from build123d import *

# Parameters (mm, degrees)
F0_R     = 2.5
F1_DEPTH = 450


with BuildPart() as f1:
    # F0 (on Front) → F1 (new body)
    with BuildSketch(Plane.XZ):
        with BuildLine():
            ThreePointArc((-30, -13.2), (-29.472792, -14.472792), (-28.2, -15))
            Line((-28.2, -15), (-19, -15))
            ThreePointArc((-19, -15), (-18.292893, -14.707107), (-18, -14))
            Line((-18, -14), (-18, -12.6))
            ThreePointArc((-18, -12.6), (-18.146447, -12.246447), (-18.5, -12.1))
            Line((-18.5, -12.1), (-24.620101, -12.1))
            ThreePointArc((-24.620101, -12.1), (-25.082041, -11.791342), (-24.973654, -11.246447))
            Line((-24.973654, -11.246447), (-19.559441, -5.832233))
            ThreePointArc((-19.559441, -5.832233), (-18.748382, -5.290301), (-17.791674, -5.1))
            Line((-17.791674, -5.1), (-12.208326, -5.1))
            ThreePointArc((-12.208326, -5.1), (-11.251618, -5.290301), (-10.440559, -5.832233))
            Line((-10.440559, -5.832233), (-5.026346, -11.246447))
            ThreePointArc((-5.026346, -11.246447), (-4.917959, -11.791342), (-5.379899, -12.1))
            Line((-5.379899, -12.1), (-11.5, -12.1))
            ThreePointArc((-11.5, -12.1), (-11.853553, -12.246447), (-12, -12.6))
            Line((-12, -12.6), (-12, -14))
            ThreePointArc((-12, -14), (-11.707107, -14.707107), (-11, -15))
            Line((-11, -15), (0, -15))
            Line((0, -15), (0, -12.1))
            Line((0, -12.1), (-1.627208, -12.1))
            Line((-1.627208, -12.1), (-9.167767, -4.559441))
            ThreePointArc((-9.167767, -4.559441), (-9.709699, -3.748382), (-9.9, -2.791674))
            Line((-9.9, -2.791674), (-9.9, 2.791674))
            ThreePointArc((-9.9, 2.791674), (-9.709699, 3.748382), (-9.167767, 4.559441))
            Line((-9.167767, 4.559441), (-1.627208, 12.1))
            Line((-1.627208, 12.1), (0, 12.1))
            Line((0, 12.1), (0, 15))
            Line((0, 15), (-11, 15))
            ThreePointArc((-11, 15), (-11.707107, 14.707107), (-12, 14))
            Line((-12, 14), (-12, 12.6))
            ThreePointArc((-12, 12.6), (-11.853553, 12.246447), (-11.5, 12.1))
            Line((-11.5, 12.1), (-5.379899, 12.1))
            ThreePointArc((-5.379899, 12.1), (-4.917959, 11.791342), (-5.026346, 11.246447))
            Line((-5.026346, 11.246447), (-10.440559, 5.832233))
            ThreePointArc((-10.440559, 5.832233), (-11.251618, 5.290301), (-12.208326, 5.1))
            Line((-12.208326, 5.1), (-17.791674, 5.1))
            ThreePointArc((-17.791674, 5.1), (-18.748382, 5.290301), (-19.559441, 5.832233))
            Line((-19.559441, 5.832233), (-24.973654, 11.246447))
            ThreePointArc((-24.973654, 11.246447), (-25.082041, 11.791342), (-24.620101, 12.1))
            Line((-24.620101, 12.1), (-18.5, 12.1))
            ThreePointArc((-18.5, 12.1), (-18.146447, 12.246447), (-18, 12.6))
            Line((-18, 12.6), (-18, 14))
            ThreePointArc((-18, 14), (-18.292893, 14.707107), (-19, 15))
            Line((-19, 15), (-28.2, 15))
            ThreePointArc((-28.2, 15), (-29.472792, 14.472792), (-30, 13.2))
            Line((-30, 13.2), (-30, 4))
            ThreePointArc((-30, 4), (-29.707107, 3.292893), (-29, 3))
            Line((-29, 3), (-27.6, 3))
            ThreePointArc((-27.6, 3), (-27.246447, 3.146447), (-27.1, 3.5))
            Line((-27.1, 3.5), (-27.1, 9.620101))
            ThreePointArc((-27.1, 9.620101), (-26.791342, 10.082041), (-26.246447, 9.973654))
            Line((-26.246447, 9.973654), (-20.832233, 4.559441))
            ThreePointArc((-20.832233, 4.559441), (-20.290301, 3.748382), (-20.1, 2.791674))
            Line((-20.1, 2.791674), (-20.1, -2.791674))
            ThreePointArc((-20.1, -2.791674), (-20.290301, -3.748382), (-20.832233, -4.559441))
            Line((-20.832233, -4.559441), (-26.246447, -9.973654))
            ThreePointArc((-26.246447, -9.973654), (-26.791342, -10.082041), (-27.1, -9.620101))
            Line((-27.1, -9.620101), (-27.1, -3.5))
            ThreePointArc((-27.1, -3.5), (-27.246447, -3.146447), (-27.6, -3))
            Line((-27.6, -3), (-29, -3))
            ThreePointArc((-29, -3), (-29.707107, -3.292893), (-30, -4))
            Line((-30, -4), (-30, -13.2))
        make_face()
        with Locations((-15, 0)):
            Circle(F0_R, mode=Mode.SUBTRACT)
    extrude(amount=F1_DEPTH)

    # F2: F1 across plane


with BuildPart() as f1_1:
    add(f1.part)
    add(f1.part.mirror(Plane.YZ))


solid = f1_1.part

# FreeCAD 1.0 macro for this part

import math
import FreeCAD as App
import Part
import Sketcher

V = App.Vector
Q = App.Units.Quantity

doc = App.newDocument("Part")
body = doc.addObject("PartDesign::Body", "Body")

# Sketch on XZ plane
sketch1 = doc.addObject("Sketcher::SketchObject", "Sketch")
body.addObject(sketch1)
sketch1.AttachmentSupport = (doc.XZ_Plane, [""])
sketch1.MapMode = "FlatFace"
sketch1.addGeometry([
    Part.ArcOfCircle(Part.Circle(V(-28.2, -13.2, 0), V(0, 0, 1), 1.8), math.radians(-180), math.radians(-90)),  # 0
    Part.LineSegment(V(-28.2, -15, 0), V(-19, -15, 0)),  # 1
    Part.ArcOfCircle(Part.Circle(V(-19, -14, 0), V(0, 0, 1), 1), math.radians(-90), math.radians(0)),  # 2
    Part.LineSegment(V(-18, -14, 0), V(-18, -12.6, 0)),  # 3
    Part.ArcOfCircle(Part.Circle(V(-18.5, -12.6, 0), V(0, 0, 1), 0.5), math.radians(0), math.radians(90)),  # 4
    Part.LineSegment(V(-18.5, -12.1, 0), V(-24.62, -12.1, 0)),  # 5
    Part.ArcOfCircle(Part.Circle(V(-24.62, -11.6, 0), V(0, 0, 1), 0.5), math.radians(135), math.radians(270)),  # 6
    Part.LineSegment(V(-24.97, -11.25, 0), V(-19.56, -5.83, 0)),  # 7
    Part.ArcOfCircle(Part.Circle(V(-17.79, -7.6, 0), V(0, 0, 1), 2.5), math.radians(90), math.radians(135)),  # 8
    Part.LineSegment(V(-17.79, -5.1, 0), V(-12.21, -5.1, 0)),  # 9
    Part.ArcOfCircle(Part.Circle(V(-12.21, -7.6, 0), V(0, 0, 1), 2.5), math.radians(45), math.radians(90)),  # 10
    Part.LineSegment(V(-10.44, -5.83, 0), V(-5.03, -11.25, 0)),  # 11
    Part.ArcOfCircle(Part.Circle(V(-5.38, -11.6, 0), V(0, 0, 1), 0.5), math.radians(-90), math.radians(45)),  # 12
    Part.LineSegment(V(-5.38, -12.1, 0), V(-11.5, -12.1, 0)),  # 13
    Part.ArcOfCircle(Part.Circle(V(-11.5, -12.6, 0), V(0, 0, 1), 0.5), math.radians(90), math.radians(180)),  # 14
    Part.LineSegment(V(-12, -12.6, 0), V(-12, -14, 0)),  # 15
    Part.ArcOfCircle(Part.Circle(V(-11, -14, 0), V(0, 0, 1), 1), math.radians(180), math.radians(270)),  # 16
    Part.LineSegment(V(-11, -15, 0), V(0, -15, 0)),  # 17
    Part.LineSegment(V(0, -15, 0), V(0, -12.1, 0)),  # 18
    Part.LineSegment(V(0, -12.1, 0), V(-1.63, -12.1, 0)),  # 19
    Part.LineSegment(V(-1.63, -12.1, 0), V(-9.17, -4.56, 0)),  # 20
    Part.ArcOfCircle(Part.Circle(V(-7.4, -2.79, 0), V(0, 0, 1), 2.5), math.radians(-180), math.radians(-135)),  # 21
    Part.LineSegment(V(-9.9, -2.79, 0), V(-9.9, 2.79, 0)),  # 22
    Part.ArcOfCircle(Part.Circle(V(-7.4, 2.79, 0), V(0, 0, 1), 2.5), math.radians(135), math.radians(180)),  # 23
    Part.LineSegment(V(-9.17, 4.56, 0), V(-1.63, 12.1, 0)),  # 24
    Part.LineSegment(V(-1.63, 12.1, 0), V(0, 12.1, 0)),  # 25
    Part.LineSegment(V(0, 12.1, 0), V(0, 15, 0)),  # 26
    Part.LineSegment(V(0, 15, 0), V(-11, 15, 0)),  # 27
    Part.ArcOfCircle(Part.Circle(V(-11, 14, 0), V(0, 0, 1), 1), math.radians(90), math.radians(180)),  # 28
    Part.LineSegment(V(-12, 14, 0), V(-12, 12.6, 0)),  # 29
    Part.ArcOfCircle(Part.Circle(V(-11.5, 12.6, 0), V(0, 0, 1), 0.5), math.radians(-180), math.radians(-90)),  # 30
    Part.LineSegment(V(-11.5, 12.1, 0), V(-5.38, 12.1, 0)),  # 31
    Part.ArcOfCircle(Part.Circle(V(-5.38, 11.6, 0), V(0, 0, 1), 0.5), math.radians(-45), math.radians(90)),  # 32
    Part.LineSegment(V(-5.03, 11.25, 0), V(-10.44, 5.83, 0)),  # 33
    Part.ArcOfCircle(Part.Circle(V(-12.21, 7.6, 0), V(0, 0, 1), 2.5), math.radians(-90), math.radians(-45)),  # 34
    Part.LineSegment(V(-12.21, 5.1, 0), V(-17.79, 5.1, 0)),  # 35
    Part.ArcOfCircle(Part.Circle(V(-17.79, 7.6, 0), V(0, 0, 1), 2.5), math.radians(-135), math.radians(-90)),  # 36
    Part.LineSegment(V(-19.56, 5.83, 0), V(-24.97, 11.25, 0)),  # 37
    Part.ArcOfCircle(Part.Circle(V(-24.62, 11.6, 0), V(0, 0, 1), 0.5), math.radians(90), math.radians(225)),  # 38
    Part.LineSegment(V(-24.62, 12.1, 0), V(-18.5, 12.1, 0)),  # 39
    Part.ArcOfCircle(Part.Circle(V(-18.5, 12.6, 0), V(0, 0, 1), 0.5), math.radians(-90), math.radians(0)),  # 40
    Part.LineSegment(V(-18, 12.6, 0), V(-18, 14, 0)),  # 41
    Part.ArcOfCircle(Part.Circle(V(-19, 14, 0), V(0, 0, 1), 1), math.radians(0), math.radians(90)),  # 42
    Part.LineSegment(V(-19, 15, 0), V(-28.2, 15, 0)),  # 43
    Part.ArcOfCircle(Part.Circle(V(-28.2, 13.2, 0), V(0, 0, 1), 1.8), math.radians(90), math.radians(180)),  # 44
    Part.LineSegment(V(-30, 13.2, 0), V(-30, 4, 0)),  # 45
    Part.ArcOfCircle(Part.Circle(V(-29, 4, 0), V(0, 0, 1), 1), math.radians(180), math.radians(270)),  # 46
    Part.LineSegment(V(-29, 3, 0), V(-27.6, 3, 0)),  # 47
    Part.ArcOfCircle(Part.Circle(V(-27.6, 3.5, 0), V(0, 0, 1), 0.5), math.radians(-90), math.radians(0)),  # 48
    Part.LineSegment(V(-27.1, 3.5, 0), V(-27.1, 9.62, 0)),  # 49
    Part.ArcOfCircle(Part.Circle(V(-26.6, 9.62, 0), V(0, 0, 1), 0.5), math.radians(45), math.radians(180)),  # 50
    Part.LineSegment(V(-26.25, 9.97, 0), V(-20.83, 4.56, 0)),  # 51
    Part.ArcOfCircle(Part.Circle(V(-22.6, 2.79, 0), V(0, 0, 1), 2.5), math.radians(0), math.radians(45)),  # 52
    Part.LineSegment(V(-20.1, 2.79, 0), V(-20.1, -2.79, 0)),  # 53
    Part.ArcOfCircle(Part.Circle(V(-22.6, -2.79, 0), V(0, 0, 1), 2.5), math.radians(-45), math.radians(0)),  # 54
    Part.LineSegment(V(-20.83, -4.56, 0), V(-26.25, -9.97, 0)),  # 55
    Part.ArcOfCircle(Part.Circle(V(-26.6, -9.62, 0), V(0, 0, 1), 0.5), math.radians(180), math.radians(315)),  # 56
    Part.LineSegment(V(-27.1, -9.62, 0), V(-27.1, -3.5, 0)),  # 57
    Part.ArcOfCircle(Part.Circle(V(-27.6, -3.5, 0), V(0, 0, 1), 0.5), math.radians(0), math.radians(90)),  # 58
    Part.LineSegment(V(-27.6, -3, 0), V(-29, -3, 0)),  # 59
    Part.ArcOfCircle(Part.Circle(V(-29, -4, 0), V(0, 0, 1), 1), math.radians(90), math.radians(180)),  # 60
    Part.LineSegment(V(-30, -4, 0), V(-30, -13.2, 0)),  # 61
    Part.Circle(V(-15, 0, 0), V(0, 0, 1), 2.5),  # 62
], False)
sketch1.addConstraint([
    Sketcher.Constraint("Tangent", 0, 2, 1, 1),
    Sketcher.Constraint("Tangent", 1, 2, 2, 1),
    Sketcher.Constraint("Tangent", 2, 2, 3, 1),
    Sketcher.Constraint("Coincident", 3, 2, 4, 1),
    Sketcher.Constraint("Coincident", 4, 2, 5, 1),
    Sketcher.Constraint("Tangent", 5, 2, 6, 2),
    Sketcher.Constraint("Coincident", 6, 1, 7, 1),
    Sketcher.Constraint("Tangent", 7, 2, 8, 2),
    Sketcher.Constraint("Tangent", 8, 1, 9, 1),
    Sketcher.Constraint("Tangent", 9, 2, 10, 2),
    Sketcher.Constraint("Tangent", 10, 1, 11, 1),
    Sketcher.Constraint("Coincident", 11, 2, 12, 2),
    Sketcher.Constraint("Tangent", 12, 1, 13, 1),
    Sketcher.Constraint("Coincident", 13, 2, 14, 1),
    Sketcher.Constraint("Coincident", 14, 2, 15, 1),
    Sketcher.Constraint("Tangent", 15, 2, 16, 1),
    Sketcher.Constraint("Tangent", 16, 2, 17, 1),
    Sketcher.Constraint("Coincident", 17, 2, 18, 1),
    Sketcher.Constraint("Coincident", 18, 2, 19, 1),
    Sketcher.Constraint("Coincident", 19, 2, 20, 1),
    Sketcher.Constraint("Tangent", 20, 2, 21, 2),
    Sketcher.Constraint("Tangent", 21, 1, 22, 1),
    Sketcher.Constraint("Tangent", 22, 2, 23, 2),
    Sketcher.Constraint("Tangent", 23, 1, 24, 1),
    Sketcher.Constraint("Coincident", 24, 2, 25, 1),
    Sketcher.Constraint("Coincident", 25, 2, 26, 1),
    Sketcher.Constraint("Coincident", 26, 2, 27, 1),
    Sketcher.Constraint("Tangent", 27, 2, 28, 1),
    Sketcher.Constraint("Tangent", 28, 2, 29, 1),
    Sketcher.Constraint("Coincident", 29, 2, 30, 1),
    Sketcher.Constraint("Coincident", 30, 2, 31, 1),
    Sketcher.Constraint("Tangent", 31, 2, 32, 2),
    Sketcher.Constraint("Coincident", 32, 1, 33, 1),
    Sketcher.Constraint("Tangent", 33, 2, 34, 2),
    Sketcher.Constraint("Tangent", 34, 1, 35, 1),
    Sketcher.Constraint("Tangent", 35, 2, 36, 2),
    Sketcher.Constraint("Tangent", 36, 1, 37, 1),
    Sketcher.Constraint("Coincident", 37, 2, 38, 2),
    Sketcher.Constraint("Tangent", 38, 1, 39, 1),
    Sketcher.Constraint("Coincident", 39, 2, 40, 1),
    Sketcher.Constraint("Coincident", 40, 2, 41, 1),
    Sketcher.Constraint("Tangent", 41, 2, 42, 1),
    Sketcher.Constraint("Tangent", 42, 2, 43, 1),
    Sketcher.Constraint("Tangent", 43, 2, 44, 1),
    Sketcher.Constraint("Tangent", 44, 2, 45, 1),
    Sketcher.Constraint("Tangent", 45, 2, 46, 1),
    Sketcher.Constraint("Tangent", 46, 2, 47, 1),
    Sketcher.Constraint("Coincident", 47, 2, 48, 1),
    Sketcher.Constraint("Coincident", 48, 2, 49, 1),
    Sketcher.Constraint("Tangent", 49, 2, 50, 2),
    Sketcher.Constraint("Coincident", 50, 1, 51, 1),
    Sketcher.Constraint("Tangent", 51, 2, 52, 2),
    Sketcher.Constraint("Tangent", 52, 1, 53, 1),
    Sketcher.Constraint("Tangent", 53, 2, 54, 2),
    Sketcher.Constraint("Tangent", 54, 1, 55, 1),
    Sketcher.Constraint("Coincident", 55, 2, 56, 2),
    Sketcher.Constraint("Tangent", 56, 1, 57, 1),
    Sketcher.Constraint("Coincident", 57, 2, 58, 1),
    Sketcher.Constraint("Coincident", 58, 2, 59, 1),
    Sketcher.Constraint("Tangent", 59, 2, 60, 1),
    Sketcher.Constraint("Tangent", 60, 2, 61, 1),
    Sketcher.Constraint("Tangent", 61, 2, 0, 1),
    Sketcher.Constraint("Horizontal", 1),
    Sketcher.Constraint("Vertical", 3),
    Sketcher.Constraint("Horizontal", 5),
    Sketcher.Constraint("Horizontal", 9),
    Sketcher.Constraint("Horizontal", 13),
    Sketcher.Constraint("Vertical", 15),
    Sketcher.Constraint("Horizontal", 17),
    Sketcher.Constraint("Vertical", 18),
    Sketcher.Constraint("Horizontal", 19),
    Sketcher.Constraint("Vertical", 22),
    Sketcher.Constraint("Horizontal", 25),
    Sketcher.Constraint("Vertical", 26),
    Sketcher.Constraint("Horizontal", 27),
    Sketcher.Constraint("Vertical", 29),
    Sketcher.Constraint("Horizontal", 31),
    Sketcher.Constraint("Horizontal", 35),
    Sketcher.Constraint("Horizontal", 39),
    Sketcher.Constraint("Vertical", 41),
    Sketcher.Constraint("Horizontal", 43),
    Sketcher.Constraint("Vertical", 45),
    Sketcher.Constraint("Horizontal", 47),
    Sketcher.Constraint("Vertical", 49),
    Sketcher.Constraint("Vertical", 53),
    Sketcher.Constraint("Vertical", 57),
    Sketcher.Constraint("Horizontal", 59),
    Sketcher.Constraint("Vertical", 61),
    Sketcher.Constraint("Equal", 4, 6),
    Sketcher.Constraint("Equal", 8, 10),
    Sketcher.Constraint("Equal", 6, 12),
    Sketcher.Constraint("Equal", 12, 14),
    Sketcher.Constraint("Equal", 2, 16),
    Sketcher.Constraint("Equal", 10, 21),
    Sketcher.Constraint("Equal", 21, 23),
    Sketcher.Constraint("Equal", 16, 28),
    Sketcher.Constraint("Equal", 14, 30),
    Sketcher.Constraint("Equal", 30, 32),
    Sketcher.Constraint("Equal", 23, 34),
    Sketcher.Constraint("Equal", 34, 36),
    Sketcher.Constraint("Equal", 32, 38),
    Sketcher.Constraint("Equal", 38, 40),
    Sketcher.Constraint("Equal", 28, 42),
    Sketcher.Constraint("Equal", 0, 44),
    Sketcher.Constraint("Equal", 42, 46),
    Sketcher.Constraint("Equal", 40, 48),
    Sketcher.Constraint("Equal", 48, 50),
    Sketcher.Constraint("Equal", 36, 52),
    Sketcher.Constraint("Equal", 52, 54),
    Sketcher.Constraint("Equal", 50, 56),
    Sketcher.Constraint("Equal", 56, 58),
    Sketcher.Constraint("Equal", 46, 60),
    Sketcher.Constraint("Equal", 54, 62),
    Sketcher.Constraint("Symmetric", 18, 2, 25, 2, -1, 1),
    Sketcher.Constraint("Symmetric", 16, 3, 28, 3, -1),
    Sketcher.Constraint("Symmetric", 12, 3, 32, 3, -1),
    Sketcher.Constraint("Symmetric", 10, 3, 34, 3, -1),
    Sketcher.Constraint("Symmetric", 6, 3, 38, 3, -1),
    Sketcher.Constraint("Symmetric", 2, 3, 42, 3, -1),
    Sketcher.Constraint("Symmetric", 50, 3, 56, 3, -1),
    Sketcher.Constraint("Symmetric", 46, 3, 60, 3, -1),
    Sketcher.Constraint("Symmetric", 20, 2, 23, 1, -1),
    Sketcher.Constraint("PointOnObject", 62, 3, -1),
    Sketcher.Constraint("PointOnObject", 17, 2, -2),
    Sketcher.Constraint("Perpendicular", 7, 11),
    Sketcher.Constraint("Parallel", 11, 20),
    Sketcher.Constraint("Perpendicular", 20, 24),
    Sketcher.Constraint("Perpendicular", 33, 37),
    Sketcher.Constraint("Parallel", 37, 51),
    Sketcher.Constraint("Perpendicular", 51, 55),
    Sketcher.Constraint("Horizontal", 6, 3, 12, 3),
    Sketcher.Constraint("Horizontal", 2, 3, 16, 3),
    Sketcher.Constraint("Horizontal", 23, 3, 52, 3),
    Sketcher.Constraint("Horizontal", 14, 3, 3, 2),
    Sketcher.Constraint("Horizontal", 6, 1, 11, 2),
    Sketcher.Constraint("Horizontal", 3, 2, 14, 2),
    Sketcher.Constraint("Horizontal", 13, 2, 18, 2),
    Sketcher.Constraint("Horizontal", 40, 3, 29, 2),
    Sketcher.Constraint("Horizontal", 32, 1, 37, 2),
    Sketcher.Constraint("Horizontal", 29, 2, 40, 2),
    Sketcher.Constraint("Horizontal", 58, 3, 57, 2),
    Sketcher.Constraint("Vertical", 40, 3, 4, 2),
    Sketcher.Constraint("Vertical", 30, 3, 13, 2),
    Sketcher.Constraint("Vertical", 13, 2, 30, 2),
    Sketcher.Constraint("Vertical", 11, 2, 32, 1),
    Sketcher.Constraint("Vertical", 4, 2, 39, 2),
    Sketcher.Constraint("Vertical", 58, 3, 47, 2),
    Sketcher.Constraint("Vertical", 50, 1, 55, 2),
    Sketcher.Constraint("Vertical", 47, 2, 58, 2),
    Sketcher.Constraint("Equal", 5, 13),
    Sketcher.Constraint("Equal", 59, 3),
    Sketcher.Constraint("Equal", 35, 22),
    Sketcher.Constraint("Equal", 43, 45),
    Sketcher.Constraint("Equal", 39, 49),
    Sketcher.Constraint("Equal", 49, 57),
    Sketcher.Constraint("Equal", 37, 51),
    Sketcher.Constraint("Diameter", 62, Q("5 mm")),
    Sketcher.Constraint("Radius", 2, Q("0.999999 mm")),
    Sketcher.Constraint("Radius", 0, Q("1.800001 mm")),
    Sketcher.Constraint("Radius", 4, Q("0.500001 mm")),
    Sketcher.Constraint("DistanceX", 17, 1, 17, 2, Q("11 mm")),
    Sketcher.Constraint("DistanceX", 1, 1, 1, 2, Q("9.2 mm")),
    Sketcher.Constraint("DistanceX", 47, 1, 47, 2, Q("1.4 mm")),
    Sketcher.Constraint("DistanceX", 2, 3, -1, 1, Q("18.999999 mm")),
    Sketcher.Constraint("DistanceY", 2, 3, -1, 1, Q("14.000001 mm")),
    Sketcher.Constraint("DistanceX", 62, 3, -1, 1, Q("15 mm")),
    Sketcher.Constraint("DistanceY", 8, 3, -1, 1, Q("7.600001 mm")),
    Sketcher.Constraint("DistanceX", 21, 3, -1, 1, Q("7.399999 mm")),
    Sketcher.Constraint("DistanceX", 5, 2, 5, 1, Q("6.120101 mm")),
    Sketcher.Constraint("Distance", 7, Q("7.656854 mm")),
])
pad1 = doc.addObject("PartDesign::Pad", "Pad")
body.addObject(pad1)
pad1.Profile = sketch1
pad1.Length = 450
body2 = doc.addObject("PartDesign::Body", "Body001")
doc.recompute()

body2.BaseFeature = body
doc.recompute()

mirroring = doc.addObject("Part::Mirroring", "Mirroring")
mirroring.Source = body
mirroring.Base = V(0, 0, 0)
mirroring.Normal = V(1, 0, 0)
body3 = doc.addObject("PartDesign::Body", "Body002")
body3.BaseFeature = mirroring
boolean = doc.addObject("PartDesign::Boolean", "Boolean")
body2.addObject(boolean)
boolean.Type = "Fuse"
boolean.addObjects([body3])
doc.recompute()
mirroring.Visibility = False

doc.recompute()
